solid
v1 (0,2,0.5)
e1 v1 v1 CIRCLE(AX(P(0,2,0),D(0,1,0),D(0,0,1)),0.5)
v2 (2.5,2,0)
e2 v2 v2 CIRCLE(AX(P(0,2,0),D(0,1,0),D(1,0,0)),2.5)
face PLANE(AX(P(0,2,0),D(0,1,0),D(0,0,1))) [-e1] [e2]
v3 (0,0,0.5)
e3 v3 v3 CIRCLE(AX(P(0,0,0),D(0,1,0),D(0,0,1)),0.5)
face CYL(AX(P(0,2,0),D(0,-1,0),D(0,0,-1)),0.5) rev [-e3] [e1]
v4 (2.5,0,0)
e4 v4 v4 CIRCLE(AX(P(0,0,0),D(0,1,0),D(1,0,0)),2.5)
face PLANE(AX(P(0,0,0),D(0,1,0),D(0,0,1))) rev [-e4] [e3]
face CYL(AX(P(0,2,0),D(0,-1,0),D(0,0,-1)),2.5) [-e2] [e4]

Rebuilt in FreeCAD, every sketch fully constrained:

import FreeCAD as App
import Part
import Sketcher

V = App.Vector
Q = App.Units.Quantity

doc = App.newDocument("Part")
params = doc.addObject("Spreadsheet::Sheet", "Params")
for row, (alias, value) in enumerate([
    ("sketch1_diameter", "5 mm"),
    ("sketch1_diameter2", "1 mm"),
    ("pad1_length", "2 mm"),
], start=1):
    params.set(f"A{row}", alias)
    params.set(f"B{row}", "=" + value)
    params.setAlias(f"B{row}", alias)

body = doc.addObject("PartDesign::Body", "Body")

sketch1 = doc.addObject("Sketcher::SketchObject", "Sketch")
body.addObject(sketch1)
sketch1.AttachmentSupport = (doc.XZ_Plane, [""])
sketch1.MapMode = "FlatFace"
sketch1.addGeometry([
    Part.Circle(V(0, 0, 0), V(0, 0, 1), 2.5),
    Part.Circle(V(0, 0, 0), V(0, 0, 1), 0.5),
], False)
sketch1.addConstraint([
    Sketcher.Constraint("Coincident", 0, 3, -1, 1),
    Sketcher.Constraint("Coincident", 1, 3, -1, 1),
    Sketcher.Constraint("Diameter", 0, Q("5 mm")),
    Sketcher.Constraint("Diameter", 1, Q("1 mm")),
])
sketch1.setExpression("Constraints[2]", "Params.sketch1_diameter")
sketch1.setExpression("Constraints[3]", "Params.sketch1_diameter2")
pad1 = doc.addObject("PartDesign::Pad", "Pad")
body.addObject(pad1)
pad1.Profile = sketch1
pad1.setExpression("Length", "Params.pad1_length")
pad1.Reversed = True

doc.recompute()
